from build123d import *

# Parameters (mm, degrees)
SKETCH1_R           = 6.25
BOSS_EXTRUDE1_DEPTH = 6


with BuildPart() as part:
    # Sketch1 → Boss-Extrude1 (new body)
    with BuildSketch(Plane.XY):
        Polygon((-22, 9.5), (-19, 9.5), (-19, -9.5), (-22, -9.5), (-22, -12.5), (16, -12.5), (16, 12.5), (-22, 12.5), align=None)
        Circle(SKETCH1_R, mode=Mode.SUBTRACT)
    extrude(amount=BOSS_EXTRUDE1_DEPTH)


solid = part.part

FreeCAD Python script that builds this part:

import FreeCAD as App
import Part
import Sketcher

V = App.Vector
Q = App.Units.Quantity


def add_polygon(sketch, points):
    """Adds a closed chain of lines whose ends are joined by coincident constraints."""
    first, n = sketch.GeometryCount, len(points)
    for a, b in zip(points, points[1:] + points[:1]):
        sketch.addGeometry(Part.LineSegment(App.Vector(*a, 0), App.Vector(*b, 0)), False)
    for i in range(n):
        sketch.addConstraint(Sketcher.Constraint("Coincident", first + i, 2, first + (i + 1) % n, 1))

doc = App.newDocument("Part")
body = doc.addObject("PartDesign::Body", "Body")

# Sketch on XY plane
sketch1 = body.newObject("Sketcher::SketchObject", "Sketch")
sketch1.AttachmentSupport = (doc.getObject("XY_Plane"), [""])
sketch1.MapMode = "FlatFace"
add_polygon(sketch1, [(-22, 9.5), (-19, 9.5), (-19, -9.5), (-22, -9.5), (-22, -12.5), (16, -12.5), (16, 12.5), (-22, 12.5)])  # lines 0-7
sketch1.addGeometry(Part.Circle(V(0, 0, 0), V(0, 0, 1), 6.2), False)  # 8
sketch1.addConstraint(Sketcher.Constraint("Horizontal", 0))
sketch1.addConstraint(Sketcher.Constraint("Vertical", 1))
sketch1.addConstraint(Sketcher.Constraint("Horizontal", 2))
sketch1.addConstraint(Sketcher.Constraint("Vertical", 3))
sketch1.addConstraint(Sketcher.Constraint("Horizontal", 4))
sketch1.addConstraint(Sketcher.Constraint("Vertical", 5))
sketch1.addConstraint(Sketcher.Constraint("Horizontal", 6))
sketch1.addConstraint(Sketcher.Constraint("Vertical", 7))
sketch1.addConstraint(Sketcher.Constraint("Coincident", 8, 3, -1, 1))
sketch1.addConstraint(Sketcher.Constraint("Symmetric", 3, 2, 6, 2, -1))
sketch1.addConstraint(Sketcher.Constraint("Equal", 2, 3))
sketch1.addConstraint(Sketcher.Constraint("Equal", 3, 7))
sketch1.addConstraint(Sketcher.Constraint("Diameter", 8, Q("12.5 mm")))
sketch1.addConstraint(Sketcher.Constraint("DistanceX", 0, 1, 0, 2, Q("3 mm")))
sketch1.addConstraint(Sketcher.Constraint("DistanceX", 4, 1, 4, 2, Q("38 mm")))
sketch1.addConstraint(Sketcher.Constraint("DistanceY", 1, 2, 1, 1, Q("19 mm")))
sketch1.addConstraint(Sketcher.Constraint("DistanceX", 0, 2, -1, 1, Q("19 mm")))
pad1 = body.newObject("PartDesign::Pad", "Pad")
pad1.Profile = sketch1
pad1.Length = 6

doc.recompute()
